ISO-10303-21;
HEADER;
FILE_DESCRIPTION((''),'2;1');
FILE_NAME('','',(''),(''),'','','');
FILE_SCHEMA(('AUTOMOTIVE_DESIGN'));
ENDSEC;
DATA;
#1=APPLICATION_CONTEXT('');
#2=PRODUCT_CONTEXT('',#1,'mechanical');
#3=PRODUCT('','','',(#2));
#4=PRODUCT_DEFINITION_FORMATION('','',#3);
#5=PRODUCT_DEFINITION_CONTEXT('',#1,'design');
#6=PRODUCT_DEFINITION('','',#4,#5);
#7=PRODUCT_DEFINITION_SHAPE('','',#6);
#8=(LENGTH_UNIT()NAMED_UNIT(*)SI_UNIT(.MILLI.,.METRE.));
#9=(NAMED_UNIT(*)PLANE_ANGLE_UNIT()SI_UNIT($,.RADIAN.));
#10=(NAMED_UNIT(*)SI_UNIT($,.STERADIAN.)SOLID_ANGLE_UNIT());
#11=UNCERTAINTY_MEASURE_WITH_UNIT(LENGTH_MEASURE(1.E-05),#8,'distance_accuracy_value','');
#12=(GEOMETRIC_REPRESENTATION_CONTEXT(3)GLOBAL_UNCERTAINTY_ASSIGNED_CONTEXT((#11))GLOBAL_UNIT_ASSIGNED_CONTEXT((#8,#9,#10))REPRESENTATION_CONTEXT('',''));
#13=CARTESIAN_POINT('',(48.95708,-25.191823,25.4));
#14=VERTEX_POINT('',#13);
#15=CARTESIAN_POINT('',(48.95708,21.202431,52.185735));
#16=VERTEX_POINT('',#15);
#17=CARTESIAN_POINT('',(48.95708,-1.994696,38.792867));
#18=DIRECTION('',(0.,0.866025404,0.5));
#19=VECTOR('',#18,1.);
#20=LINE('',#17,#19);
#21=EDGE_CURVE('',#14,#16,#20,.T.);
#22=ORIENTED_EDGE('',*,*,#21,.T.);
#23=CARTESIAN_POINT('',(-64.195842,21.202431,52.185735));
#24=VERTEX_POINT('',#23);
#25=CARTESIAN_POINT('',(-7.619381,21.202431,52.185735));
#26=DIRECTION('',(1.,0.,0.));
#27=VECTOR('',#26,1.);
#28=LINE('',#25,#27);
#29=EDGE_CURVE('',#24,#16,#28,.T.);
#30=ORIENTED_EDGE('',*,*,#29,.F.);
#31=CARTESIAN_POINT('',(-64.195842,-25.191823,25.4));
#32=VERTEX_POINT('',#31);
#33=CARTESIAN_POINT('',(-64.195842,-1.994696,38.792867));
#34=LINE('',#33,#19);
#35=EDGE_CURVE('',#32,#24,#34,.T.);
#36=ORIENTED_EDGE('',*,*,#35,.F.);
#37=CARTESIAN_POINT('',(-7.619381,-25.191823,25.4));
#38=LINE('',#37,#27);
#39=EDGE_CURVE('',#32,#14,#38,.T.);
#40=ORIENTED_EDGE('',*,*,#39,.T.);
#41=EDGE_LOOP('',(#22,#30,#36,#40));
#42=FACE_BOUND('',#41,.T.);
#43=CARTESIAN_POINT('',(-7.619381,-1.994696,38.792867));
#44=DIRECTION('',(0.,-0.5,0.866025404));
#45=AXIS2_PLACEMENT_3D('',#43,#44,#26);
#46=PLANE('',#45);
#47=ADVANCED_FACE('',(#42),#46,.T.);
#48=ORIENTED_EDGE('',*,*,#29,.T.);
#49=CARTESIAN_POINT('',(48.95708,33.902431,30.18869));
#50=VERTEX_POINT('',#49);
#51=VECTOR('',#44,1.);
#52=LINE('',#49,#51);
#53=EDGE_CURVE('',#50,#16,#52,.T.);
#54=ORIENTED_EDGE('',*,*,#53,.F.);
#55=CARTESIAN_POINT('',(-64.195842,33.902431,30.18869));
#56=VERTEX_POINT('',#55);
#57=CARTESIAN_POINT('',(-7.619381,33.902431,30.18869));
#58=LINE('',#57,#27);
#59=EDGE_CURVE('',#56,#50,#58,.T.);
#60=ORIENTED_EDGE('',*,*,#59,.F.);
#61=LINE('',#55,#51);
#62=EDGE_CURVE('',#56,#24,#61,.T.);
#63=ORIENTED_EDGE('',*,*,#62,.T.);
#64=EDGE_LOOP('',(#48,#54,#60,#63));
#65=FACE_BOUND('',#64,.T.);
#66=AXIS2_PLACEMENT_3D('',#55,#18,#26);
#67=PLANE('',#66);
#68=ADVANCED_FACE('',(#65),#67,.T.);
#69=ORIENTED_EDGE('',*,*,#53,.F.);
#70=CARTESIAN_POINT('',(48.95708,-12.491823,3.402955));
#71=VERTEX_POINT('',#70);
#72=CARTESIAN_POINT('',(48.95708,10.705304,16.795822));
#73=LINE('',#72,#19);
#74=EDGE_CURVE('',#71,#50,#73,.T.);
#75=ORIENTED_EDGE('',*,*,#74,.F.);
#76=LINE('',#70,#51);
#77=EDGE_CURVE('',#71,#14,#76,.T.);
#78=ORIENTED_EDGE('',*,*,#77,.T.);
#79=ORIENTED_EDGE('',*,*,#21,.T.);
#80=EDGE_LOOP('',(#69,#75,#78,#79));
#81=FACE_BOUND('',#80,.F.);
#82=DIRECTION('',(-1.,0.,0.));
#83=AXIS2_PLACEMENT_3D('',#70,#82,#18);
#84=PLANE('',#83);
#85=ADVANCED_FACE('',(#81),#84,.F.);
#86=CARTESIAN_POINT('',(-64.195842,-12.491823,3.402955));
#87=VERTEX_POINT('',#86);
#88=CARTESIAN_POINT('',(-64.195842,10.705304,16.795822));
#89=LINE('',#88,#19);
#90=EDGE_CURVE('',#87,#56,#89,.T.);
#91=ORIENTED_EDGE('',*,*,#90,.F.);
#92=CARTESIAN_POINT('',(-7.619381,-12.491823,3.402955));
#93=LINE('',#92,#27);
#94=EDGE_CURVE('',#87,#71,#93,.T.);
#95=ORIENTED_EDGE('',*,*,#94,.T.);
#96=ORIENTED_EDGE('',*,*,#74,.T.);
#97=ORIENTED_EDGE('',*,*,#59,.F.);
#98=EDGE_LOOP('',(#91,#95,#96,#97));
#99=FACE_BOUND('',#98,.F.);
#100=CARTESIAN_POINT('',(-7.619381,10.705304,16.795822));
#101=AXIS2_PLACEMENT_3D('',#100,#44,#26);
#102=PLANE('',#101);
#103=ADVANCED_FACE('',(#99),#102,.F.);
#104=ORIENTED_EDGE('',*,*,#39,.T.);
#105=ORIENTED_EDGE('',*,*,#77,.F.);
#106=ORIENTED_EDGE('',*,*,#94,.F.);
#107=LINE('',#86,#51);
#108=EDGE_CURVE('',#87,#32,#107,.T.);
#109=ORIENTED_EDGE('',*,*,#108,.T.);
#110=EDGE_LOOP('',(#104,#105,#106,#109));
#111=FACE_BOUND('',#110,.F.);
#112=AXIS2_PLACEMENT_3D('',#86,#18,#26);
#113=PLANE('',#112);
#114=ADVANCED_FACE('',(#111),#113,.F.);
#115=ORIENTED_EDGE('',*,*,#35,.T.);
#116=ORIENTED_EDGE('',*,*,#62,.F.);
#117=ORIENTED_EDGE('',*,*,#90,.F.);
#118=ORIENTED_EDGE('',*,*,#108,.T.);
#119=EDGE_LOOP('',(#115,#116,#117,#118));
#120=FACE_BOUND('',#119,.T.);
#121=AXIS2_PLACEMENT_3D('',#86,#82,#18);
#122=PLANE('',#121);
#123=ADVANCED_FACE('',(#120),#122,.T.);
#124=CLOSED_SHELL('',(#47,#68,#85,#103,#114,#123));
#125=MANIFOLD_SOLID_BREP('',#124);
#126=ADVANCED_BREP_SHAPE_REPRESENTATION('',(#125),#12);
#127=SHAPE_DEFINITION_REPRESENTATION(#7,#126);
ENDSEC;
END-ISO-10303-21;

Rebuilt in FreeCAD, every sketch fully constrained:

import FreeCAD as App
import Part
import Sketcher
from FreeCAD import Vector
Q = App.Units.Quantity

doc = App.newDocument("Part")
params = doc.addObject("Spreadsheet::Sheet", "Params")
for row, (alias, value) in enumerate([
    ("pad1_length", "1 in"),
], start=1):
    params.set(f"A{row}", alias)
    params.set(f"B{row}", "=" + value)
    params.setAlias(f"B{row}", alias)

body = doc.addObject("PartDesign::Body", "Body")

# Sketch on XY plane
sketch1 = doc.addObject("Sketcher::SketchObject", "Sketch")
body.addObject(sketch1)
sketch1.AttachmentSupport = (doc.XY_Plane, [""])
sketch1.MapMode = "FlatFace"
sketch1.addGeometry([
    Part.LineSegment(Vector(-64, 28, 0), Vector(-64, -25, 0)),
    Part.LineSegment(Vector(-64, -25, 0), Vector(49, -25, 0)),
    Part.LineSegment(Vector(49, -25, 0), Vector(49, 28, 0)),
    Part.LineSegment(Vector(49, 28, 0), Vector(-64, 28, 0)),
], False)
sketch1.addConstraint([
    Sketcher.Constraint("Coincident", 0, 2, 1, 1),
    Sketcher.Constraint("Coincident", 1, 2, 2, 1),
    Sketcher.Constraint("Coincident", 2, 2, 3, 1),
    Sketcher.Constraint("Coincident", 3, 2, 0, 1),
    Sketcher.Constraint("Vertical", 0),
    Sketcher.Constraint("Horizontal", 1),
    Sketcher.Constraint("Vertical", 2),
    Sketcher.Constraint("Horizontal", 3),
    Sketcher.Constraint("DistanceX", 1, 1, 1, 2, Q("113.152922 mm")),
    Sketcher.Constraint("DistanceY", 0, 2, 0, 1, Q("53.57147 mm")),
    Sketcher.Constraint("DistanceX", 0, 2, -1, 1, Q("64.195842 mm")),
    Sketcher.Constraint("DistanceY", 0, 2, -1, 1, Q("25.191823 mm")),
])
pad1 = doc.addObject("PartDesign::Pad", "Pad")
body.addObject(pad1)
pad1.Profile = sketch1
pad1.setExpression("Length", "Params.pad1_length")
body2 = doc.addObject("PartDesign::Body", "Body001")
doc.recompute()

body.Placement = App.Placement(Vector(0, 9.324936, 15.998866), App.Rotation(Vector(1, 0, 0), 30))
boolean = doc.addObject("PartDesign::Boolean", "Boolean")
body2.addObject(boolean)
boolean.Type = "Fuse"
boolean.addObjects([body])

doc.recompute()
